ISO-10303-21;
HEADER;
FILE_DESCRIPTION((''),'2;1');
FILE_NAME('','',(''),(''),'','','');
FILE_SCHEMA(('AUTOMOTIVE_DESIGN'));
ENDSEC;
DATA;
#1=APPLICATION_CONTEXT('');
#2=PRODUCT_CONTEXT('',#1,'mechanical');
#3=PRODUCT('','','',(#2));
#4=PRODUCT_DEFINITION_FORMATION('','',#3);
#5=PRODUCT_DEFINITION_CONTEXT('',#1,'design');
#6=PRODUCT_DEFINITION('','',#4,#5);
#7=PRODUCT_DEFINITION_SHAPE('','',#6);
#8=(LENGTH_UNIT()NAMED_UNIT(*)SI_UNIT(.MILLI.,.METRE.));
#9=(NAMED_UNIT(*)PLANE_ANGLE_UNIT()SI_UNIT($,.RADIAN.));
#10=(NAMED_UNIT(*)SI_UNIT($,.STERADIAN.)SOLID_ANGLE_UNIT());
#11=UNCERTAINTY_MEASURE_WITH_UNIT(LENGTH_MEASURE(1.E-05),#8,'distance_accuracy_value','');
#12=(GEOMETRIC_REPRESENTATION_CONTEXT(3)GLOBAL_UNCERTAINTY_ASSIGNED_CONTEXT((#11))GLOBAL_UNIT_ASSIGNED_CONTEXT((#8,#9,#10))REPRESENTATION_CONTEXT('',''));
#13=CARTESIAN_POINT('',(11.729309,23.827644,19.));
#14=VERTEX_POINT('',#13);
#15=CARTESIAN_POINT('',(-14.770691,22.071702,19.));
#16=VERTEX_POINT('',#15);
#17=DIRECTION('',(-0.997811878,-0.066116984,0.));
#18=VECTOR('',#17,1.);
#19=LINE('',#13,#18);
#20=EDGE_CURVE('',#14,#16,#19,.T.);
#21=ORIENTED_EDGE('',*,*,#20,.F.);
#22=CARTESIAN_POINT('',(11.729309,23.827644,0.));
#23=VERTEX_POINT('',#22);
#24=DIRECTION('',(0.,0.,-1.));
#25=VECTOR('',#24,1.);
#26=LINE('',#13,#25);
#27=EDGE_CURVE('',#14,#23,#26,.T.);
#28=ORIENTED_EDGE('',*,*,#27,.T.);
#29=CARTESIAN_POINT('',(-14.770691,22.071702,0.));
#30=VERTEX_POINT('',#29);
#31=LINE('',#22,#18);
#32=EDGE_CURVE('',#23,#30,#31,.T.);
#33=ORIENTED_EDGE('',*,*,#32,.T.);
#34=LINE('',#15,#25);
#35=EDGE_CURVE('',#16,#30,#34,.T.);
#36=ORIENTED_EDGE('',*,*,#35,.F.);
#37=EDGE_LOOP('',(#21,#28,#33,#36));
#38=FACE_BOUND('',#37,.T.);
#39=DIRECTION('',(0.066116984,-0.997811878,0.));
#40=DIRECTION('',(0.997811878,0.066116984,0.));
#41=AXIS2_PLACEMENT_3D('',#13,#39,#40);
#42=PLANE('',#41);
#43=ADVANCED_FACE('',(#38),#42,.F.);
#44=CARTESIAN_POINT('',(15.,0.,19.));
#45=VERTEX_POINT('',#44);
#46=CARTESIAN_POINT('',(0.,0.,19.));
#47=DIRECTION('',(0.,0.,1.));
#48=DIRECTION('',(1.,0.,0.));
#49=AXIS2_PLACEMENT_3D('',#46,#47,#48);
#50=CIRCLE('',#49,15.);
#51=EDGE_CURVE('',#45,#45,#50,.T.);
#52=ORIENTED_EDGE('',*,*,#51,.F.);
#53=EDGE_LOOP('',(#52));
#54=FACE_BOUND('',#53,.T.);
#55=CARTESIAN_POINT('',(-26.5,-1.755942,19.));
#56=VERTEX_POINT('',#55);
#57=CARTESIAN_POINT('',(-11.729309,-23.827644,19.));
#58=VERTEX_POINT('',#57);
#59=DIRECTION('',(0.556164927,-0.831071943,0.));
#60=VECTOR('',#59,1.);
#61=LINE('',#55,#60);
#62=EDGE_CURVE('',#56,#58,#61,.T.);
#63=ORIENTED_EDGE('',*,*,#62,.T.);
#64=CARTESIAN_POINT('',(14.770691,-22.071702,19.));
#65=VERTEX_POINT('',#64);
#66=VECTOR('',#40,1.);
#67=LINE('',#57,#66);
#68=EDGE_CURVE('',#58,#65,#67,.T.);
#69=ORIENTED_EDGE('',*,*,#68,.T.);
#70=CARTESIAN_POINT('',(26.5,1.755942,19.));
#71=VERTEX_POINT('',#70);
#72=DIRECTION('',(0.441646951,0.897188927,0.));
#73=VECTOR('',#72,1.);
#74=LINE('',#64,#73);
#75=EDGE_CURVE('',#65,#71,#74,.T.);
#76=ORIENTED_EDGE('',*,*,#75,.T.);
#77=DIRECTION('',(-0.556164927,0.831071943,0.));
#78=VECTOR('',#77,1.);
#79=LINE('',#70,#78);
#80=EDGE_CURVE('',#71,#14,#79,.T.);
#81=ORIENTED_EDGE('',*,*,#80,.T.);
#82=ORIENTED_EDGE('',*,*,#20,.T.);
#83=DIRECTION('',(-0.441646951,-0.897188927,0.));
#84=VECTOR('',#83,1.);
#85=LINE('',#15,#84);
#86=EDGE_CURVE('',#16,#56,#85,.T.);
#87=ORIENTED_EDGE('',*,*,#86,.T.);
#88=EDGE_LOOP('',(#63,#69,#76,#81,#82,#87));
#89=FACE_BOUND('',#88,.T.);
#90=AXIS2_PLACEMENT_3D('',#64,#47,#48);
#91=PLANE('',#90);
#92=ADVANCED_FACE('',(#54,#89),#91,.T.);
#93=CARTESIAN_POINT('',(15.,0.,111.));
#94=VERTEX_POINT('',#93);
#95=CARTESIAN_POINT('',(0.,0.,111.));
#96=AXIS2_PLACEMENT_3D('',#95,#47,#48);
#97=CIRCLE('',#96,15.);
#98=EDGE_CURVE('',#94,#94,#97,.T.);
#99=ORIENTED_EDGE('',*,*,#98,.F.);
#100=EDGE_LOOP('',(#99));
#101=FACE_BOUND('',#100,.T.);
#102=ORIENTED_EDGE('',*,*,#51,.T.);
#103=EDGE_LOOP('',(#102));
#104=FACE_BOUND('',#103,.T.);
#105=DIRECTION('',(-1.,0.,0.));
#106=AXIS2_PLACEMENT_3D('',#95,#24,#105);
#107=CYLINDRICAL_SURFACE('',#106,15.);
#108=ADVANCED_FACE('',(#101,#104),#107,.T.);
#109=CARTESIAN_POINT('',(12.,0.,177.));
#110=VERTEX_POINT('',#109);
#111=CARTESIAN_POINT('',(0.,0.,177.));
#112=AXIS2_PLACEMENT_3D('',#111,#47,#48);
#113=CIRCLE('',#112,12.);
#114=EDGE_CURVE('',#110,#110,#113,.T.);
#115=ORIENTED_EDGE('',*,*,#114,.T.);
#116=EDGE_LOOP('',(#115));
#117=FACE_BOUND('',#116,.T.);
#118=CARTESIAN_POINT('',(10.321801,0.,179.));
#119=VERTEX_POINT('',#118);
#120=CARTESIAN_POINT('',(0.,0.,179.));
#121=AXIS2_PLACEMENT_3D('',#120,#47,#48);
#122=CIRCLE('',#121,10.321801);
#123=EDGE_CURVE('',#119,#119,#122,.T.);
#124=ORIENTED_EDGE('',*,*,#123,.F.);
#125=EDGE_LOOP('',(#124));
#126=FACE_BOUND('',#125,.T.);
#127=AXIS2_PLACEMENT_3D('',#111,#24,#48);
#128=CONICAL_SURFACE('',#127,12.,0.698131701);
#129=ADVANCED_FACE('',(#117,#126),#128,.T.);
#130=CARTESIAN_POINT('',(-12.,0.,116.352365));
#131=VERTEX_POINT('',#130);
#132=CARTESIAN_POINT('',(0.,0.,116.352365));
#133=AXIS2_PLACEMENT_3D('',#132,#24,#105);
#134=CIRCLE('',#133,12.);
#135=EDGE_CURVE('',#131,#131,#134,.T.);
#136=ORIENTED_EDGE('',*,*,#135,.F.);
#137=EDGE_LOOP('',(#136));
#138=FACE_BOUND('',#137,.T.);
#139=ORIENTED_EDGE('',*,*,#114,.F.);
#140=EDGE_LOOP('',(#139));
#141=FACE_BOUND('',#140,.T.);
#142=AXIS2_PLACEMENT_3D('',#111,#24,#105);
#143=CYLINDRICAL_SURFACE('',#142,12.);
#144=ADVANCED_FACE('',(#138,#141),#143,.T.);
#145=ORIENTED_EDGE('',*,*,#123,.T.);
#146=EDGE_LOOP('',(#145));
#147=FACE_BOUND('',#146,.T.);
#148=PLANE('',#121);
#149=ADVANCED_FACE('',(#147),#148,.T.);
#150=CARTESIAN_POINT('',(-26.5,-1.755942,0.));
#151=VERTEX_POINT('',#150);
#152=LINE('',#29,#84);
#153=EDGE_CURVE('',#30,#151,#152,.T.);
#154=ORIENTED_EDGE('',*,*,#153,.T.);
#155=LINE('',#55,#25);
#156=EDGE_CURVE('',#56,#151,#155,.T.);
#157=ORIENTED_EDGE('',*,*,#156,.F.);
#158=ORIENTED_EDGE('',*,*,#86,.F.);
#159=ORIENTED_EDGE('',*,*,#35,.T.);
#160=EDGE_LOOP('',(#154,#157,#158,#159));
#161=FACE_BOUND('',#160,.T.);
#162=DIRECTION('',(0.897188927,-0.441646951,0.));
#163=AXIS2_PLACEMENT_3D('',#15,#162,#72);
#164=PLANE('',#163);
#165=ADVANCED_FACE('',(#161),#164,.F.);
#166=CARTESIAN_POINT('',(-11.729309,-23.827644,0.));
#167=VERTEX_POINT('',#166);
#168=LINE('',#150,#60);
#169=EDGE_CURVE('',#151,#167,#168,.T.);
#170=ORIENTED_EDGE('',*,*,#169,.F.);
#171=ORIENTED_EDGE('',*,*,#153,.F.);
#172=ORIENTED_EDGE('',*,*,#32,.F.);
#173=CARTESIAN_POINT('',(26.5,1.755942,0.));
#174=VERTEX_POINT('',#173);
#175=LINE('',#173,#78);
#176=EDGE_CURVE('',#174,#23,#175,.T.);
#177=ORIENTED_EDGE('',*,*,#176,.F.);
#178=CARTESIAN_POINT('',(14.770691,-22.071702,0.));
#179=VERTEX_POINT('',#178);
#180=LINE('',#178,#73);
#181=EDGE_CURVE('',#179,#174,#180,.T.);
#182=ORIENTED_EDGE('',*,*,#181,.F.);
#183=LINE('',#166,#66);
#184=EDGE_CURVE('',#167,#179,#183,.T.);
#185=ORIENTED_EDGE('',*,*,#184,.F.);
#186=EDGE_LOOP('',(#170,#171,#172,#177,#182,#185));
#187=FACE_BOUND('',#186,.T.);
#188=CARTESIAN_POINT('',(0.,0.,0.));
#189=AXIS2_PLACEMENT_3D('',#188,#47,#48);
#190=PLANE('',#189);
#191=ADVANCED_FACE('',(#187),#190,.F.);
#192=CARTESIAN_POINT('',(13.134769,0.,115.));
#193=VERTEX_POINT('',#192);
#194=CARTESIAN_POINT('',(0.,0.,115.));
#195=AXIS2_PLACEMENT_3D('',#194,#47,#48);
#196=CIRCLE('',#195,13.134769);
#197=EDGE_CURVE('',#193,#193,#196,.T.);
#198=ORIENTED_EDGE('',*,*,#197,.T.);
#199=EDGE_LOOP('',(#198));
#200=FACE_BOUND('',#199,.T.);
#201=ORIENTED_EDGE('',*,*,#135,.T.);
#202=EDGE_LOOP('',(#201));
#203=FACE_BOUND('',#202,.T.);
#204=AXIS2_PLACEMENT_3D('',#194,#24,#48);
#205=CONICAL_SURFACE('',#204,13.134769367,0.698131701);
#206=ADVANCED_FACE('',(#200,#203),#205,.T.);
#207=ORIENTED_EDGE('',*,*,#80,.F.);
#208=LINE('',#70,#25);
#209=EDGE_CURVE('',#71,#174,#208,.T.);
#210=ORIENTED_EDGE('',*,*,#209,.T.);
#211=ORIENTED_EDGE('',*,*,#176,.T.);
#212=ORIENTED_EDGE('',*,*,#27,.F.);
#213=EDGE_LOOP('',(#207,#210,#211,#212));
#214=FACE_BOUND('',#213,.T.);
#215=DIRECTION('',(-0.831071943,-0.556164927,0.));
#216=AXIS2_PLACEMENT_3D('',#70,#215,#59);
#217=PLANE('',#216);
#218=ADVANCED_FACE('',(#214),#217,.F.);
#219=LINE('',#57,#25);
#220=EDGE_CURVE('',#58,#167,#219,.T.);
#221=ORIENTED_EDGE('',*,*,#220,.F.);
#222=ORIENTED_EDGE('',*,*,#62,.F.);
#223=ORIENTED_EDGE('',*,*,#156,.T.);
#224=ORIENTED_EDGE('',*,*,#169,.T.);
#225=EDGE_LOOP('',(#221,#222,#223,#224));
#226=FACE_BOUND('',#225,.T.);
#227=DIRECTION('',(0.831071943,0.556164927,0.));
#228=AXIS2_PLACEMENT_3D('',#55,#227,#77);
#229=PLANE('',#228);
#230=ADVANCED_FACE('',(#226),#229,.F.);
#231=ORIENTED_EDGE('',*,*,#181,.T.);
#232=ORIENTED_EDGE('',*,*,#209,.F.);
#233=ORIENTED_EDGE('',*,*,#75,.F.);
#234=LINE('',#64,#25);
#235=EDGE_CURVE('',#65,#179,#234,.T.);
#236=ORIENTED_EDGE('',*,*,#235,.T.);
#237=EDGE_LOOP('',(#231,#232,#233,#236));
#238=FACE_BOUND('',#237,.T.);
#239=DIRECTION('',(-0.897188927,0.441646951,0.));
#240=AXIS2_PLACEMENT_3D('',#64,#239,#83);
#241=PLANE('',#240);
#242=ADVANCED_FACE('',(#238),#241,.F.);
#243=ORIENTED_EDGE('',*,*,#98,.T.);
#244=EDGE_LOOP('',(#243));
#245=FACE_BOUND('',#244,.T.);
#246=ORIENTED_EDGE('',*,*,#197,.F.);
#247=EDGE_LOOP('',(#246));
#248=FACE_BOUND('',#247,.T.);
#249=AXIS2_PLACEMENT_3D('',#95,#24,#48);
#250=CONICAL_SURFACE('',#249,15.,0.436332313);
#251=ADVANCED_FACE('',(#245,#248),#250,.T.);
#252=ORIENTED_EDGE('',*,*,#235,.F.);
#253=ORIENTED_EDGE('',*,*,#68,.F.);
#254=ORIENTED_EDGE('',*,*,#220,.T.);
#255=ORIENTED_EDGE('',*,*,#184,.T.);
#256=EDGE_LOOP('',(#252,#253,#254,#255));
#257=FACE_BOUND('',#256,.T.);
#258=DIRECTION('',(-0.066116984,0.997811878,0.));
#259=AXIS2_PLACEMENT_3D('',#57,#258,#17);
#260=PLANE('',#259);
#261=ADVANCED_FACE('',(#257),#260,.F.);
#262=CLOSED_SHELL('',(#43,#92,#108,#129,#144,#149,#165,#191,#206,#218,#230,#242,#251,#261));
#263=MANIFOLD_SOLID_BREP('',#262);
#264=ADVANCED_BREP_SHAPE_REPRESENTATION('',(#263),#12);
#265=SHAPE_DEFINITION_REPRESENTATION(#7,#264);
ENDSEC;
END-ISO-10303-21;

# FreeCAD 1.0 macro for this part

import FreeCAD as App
import Part
import Sketcher

V = App.Vector
Q = App.Units.Quantity


def add_polygon(sketch, points):
    """Adds a closed chain of lines whose ends are joined by coincident constraints."""
    first, n = sketch.GeometryCount, len(points)
    for a, b in zip(points, points[1:] + points[:1]):
        sketch.addGeometry(Part.LineSegment(App.Vector(*a, 0), App.Vector(*b, 0)), False)
    for i in range(n):
        sketch.addConstraint(Sketcher.Constraint("Coincident", first + i, 2, first + (i + 1) % n, 1))

doc = App.newDocument("Part")
body = doc.addObject("PartDesign::Body", "Body")

# Sketch on XY plane
sketch1 = body.newObject("Sketcher::SketchObject", "Sketch")
sketch1.AttachmentSupport = (doc.getObject("XY_Plane"), [""])
sketch1.MapMode = "FlatFace"
sketch1.addGeometry(Part.Circle(V(0, 0, 0), V(0, 0, 1), 15), False)
sketch1.addConstraint(Sketcher.Constraint("Coincident", 0, 3, -1, 1))
sketch1.addConstraint(Sketcher.Constraint("Diameter", 0, Q("30 mm")))
pad1 = body.newObject("PartDesign::Pad", "Pad")
pad1.Profile = sketch1
pad1.Length = 111

# Sketch on XY plane
sketch2 = body.newObject("Sketcher::SketchObject", "Sketch001")
sketch2.AttachmentSupport = (doc.getObject("XY_Plane"), [""])
sketch2.MapMode = "FlatFace"
add_polygon(sketch2, [(15, -22), (26, 2), (12, 24), (-15, 22), (-26, -2), (-12, -24)])  # lines 0-5
sketch2.addConstraint(Sketcher.Constraint("Symmetric", 0, 2, 3, 2, -1, 1))
sketch2.addConstraint(Sketcher.Constraint("Symmetric", 1, 2, 4, 2, -1, 1))
sketch2.addConstraint(Sketcher.Constraint("Symmetric", 2, 2, 5, 2, -1, 1))
sketch2.addConstraint(Sketcher.Constraint("Equal", 0, 1))
sketch2.addConstraint(Sketcher.Constraint("Equal", 1, 2))
sketch2.addConstraint(Sketcher.Constraint("DistanceX", 3, 2, 0, 2, Q("53 mm")))
sketch2.addConstraint(Sketcher.Constraint("DistanceX", 2, 2, 1, 2, Q("26.5 mm")))
sketch2.addConstraint(Sketcher.Constraint("DistanceX", -1, 1, 1, 2, Q("11.729309 mm")))
sketch2.addConstraint(Sketcher.Constraint("DistanceY", 0, 2, 2, 2, Q("20.31576 mm")))
pad2 = body.newObject("PartDesign::Pad", "Pad001")
pad2.Profile = sketch2
pad2.Length = 19

# Sketch on XY plane
sketch3 = body.newObject("Sketcher::SketchObject", "Sketch002")
sketch3.AttachmentSupport = (doc.getObject("XY_Plane"), [""])
sketch3.MapMode = "FlatFace"
sketch3.AttachmentOffset = App.Placement(V(0, 0, 111), App.Rotation())
sketch3.addGeometry(Part.Circle(V(0, 0, 0), V(0, 0, 1), 15), False)
sketch3.addConstraint(Sketcher.Constraint("Coincident", 0, 3, -1, 1))
sketch3.addConstraint(Sketcher.Constraint("Diameter", 0, Q("30 mm")))
pad3 = body.newObject("PartDesign::Pad", "Pad002")
pad3.Profile = sketch3
pad3.Length = 4
pad3.TaperAngle = -25

# Sketch on XY plane
sketch4 = body.newObject("Sketcher::SketchObject", "Sketch003")
sketch4.AttachmentSupport = (doc.getObject("XY_Plane"), [""])
sketch4.MapMode = "FlatFace"
sketch4.AttachmentOffset = App.Placement(V(0, 0, 115), App.Rotation())
sketch4.addGeometry(Part.Circle(V(0, 0, 0), V(0, 0, 1), 12), False)
sketch4.addConstraint(Sketcher.Constraint("Coincident", 0, 3, -1, 1))
sketch4.addConstraint(Sketcher.Constraint("Diameter", 0, Q("24 mm")))
pad4 = body.newObject("PartDesign::Pad", "Pad003")
pad4.Profile = sketch4
pad4.Length = 62

# Sketch on XY plane
sketch5 = body.newObject("Sketcher::SketchObject", "Sketch004")
sketch5.AttachmentSupport = (doc.getObject("XY_Plane"), [""])
sketch5.MapMode = "FlatFace"
sketch5.AttachmentOffset = App.Placement(V(0, 0, 115), App.Rotation())
sketch5.addGeometry(Part.Circle(V(0, 0, 0), V(0, 0, 1), 13), False)
sketch5.addConstraint(Sketcher.Constraint("Coincident", 0, 3, -1, 1))
sketch5.addConstraint(Sketcher.Constraint("Diameter", 0, Q("26.269539 mm")))
pad5 = body.newObject("PartDesign::Pad", "Pad004")
pad5.Profile = sketch5
pad5.Length = 2
pad5.TaperAngle = -40

# Sketch on XY plane
sketch6 = body.newObject("Sketcher::SketchObject", "Sketch005")
sketch6.AttachmentSupport = (doc.getObject("XY_Plane"), [""])
sketch6.MapMode = "FlatFace"
sketch6.AttachmentOffset = App.Placement(V(0, 0, 177), App.Rotation())
sketch6.addGeometry(Part.Circle(V(0, 0, 0), V(0, 0, 1), 12), False)
sketch6.addConstraint(Sketcher.Constraint("Coincident", 0, 3, -1, 1))
sketch6.addConstraint(Sketcher.Constraint("Diameter", 0, Q("24 mm")))
pad6 = body.newObject("PartDesign::Pad", "Pad005")
pad6.Profile = sketch6
pad6.Length = 2
pad6.TaperAngle = -40

doc.recompute()
